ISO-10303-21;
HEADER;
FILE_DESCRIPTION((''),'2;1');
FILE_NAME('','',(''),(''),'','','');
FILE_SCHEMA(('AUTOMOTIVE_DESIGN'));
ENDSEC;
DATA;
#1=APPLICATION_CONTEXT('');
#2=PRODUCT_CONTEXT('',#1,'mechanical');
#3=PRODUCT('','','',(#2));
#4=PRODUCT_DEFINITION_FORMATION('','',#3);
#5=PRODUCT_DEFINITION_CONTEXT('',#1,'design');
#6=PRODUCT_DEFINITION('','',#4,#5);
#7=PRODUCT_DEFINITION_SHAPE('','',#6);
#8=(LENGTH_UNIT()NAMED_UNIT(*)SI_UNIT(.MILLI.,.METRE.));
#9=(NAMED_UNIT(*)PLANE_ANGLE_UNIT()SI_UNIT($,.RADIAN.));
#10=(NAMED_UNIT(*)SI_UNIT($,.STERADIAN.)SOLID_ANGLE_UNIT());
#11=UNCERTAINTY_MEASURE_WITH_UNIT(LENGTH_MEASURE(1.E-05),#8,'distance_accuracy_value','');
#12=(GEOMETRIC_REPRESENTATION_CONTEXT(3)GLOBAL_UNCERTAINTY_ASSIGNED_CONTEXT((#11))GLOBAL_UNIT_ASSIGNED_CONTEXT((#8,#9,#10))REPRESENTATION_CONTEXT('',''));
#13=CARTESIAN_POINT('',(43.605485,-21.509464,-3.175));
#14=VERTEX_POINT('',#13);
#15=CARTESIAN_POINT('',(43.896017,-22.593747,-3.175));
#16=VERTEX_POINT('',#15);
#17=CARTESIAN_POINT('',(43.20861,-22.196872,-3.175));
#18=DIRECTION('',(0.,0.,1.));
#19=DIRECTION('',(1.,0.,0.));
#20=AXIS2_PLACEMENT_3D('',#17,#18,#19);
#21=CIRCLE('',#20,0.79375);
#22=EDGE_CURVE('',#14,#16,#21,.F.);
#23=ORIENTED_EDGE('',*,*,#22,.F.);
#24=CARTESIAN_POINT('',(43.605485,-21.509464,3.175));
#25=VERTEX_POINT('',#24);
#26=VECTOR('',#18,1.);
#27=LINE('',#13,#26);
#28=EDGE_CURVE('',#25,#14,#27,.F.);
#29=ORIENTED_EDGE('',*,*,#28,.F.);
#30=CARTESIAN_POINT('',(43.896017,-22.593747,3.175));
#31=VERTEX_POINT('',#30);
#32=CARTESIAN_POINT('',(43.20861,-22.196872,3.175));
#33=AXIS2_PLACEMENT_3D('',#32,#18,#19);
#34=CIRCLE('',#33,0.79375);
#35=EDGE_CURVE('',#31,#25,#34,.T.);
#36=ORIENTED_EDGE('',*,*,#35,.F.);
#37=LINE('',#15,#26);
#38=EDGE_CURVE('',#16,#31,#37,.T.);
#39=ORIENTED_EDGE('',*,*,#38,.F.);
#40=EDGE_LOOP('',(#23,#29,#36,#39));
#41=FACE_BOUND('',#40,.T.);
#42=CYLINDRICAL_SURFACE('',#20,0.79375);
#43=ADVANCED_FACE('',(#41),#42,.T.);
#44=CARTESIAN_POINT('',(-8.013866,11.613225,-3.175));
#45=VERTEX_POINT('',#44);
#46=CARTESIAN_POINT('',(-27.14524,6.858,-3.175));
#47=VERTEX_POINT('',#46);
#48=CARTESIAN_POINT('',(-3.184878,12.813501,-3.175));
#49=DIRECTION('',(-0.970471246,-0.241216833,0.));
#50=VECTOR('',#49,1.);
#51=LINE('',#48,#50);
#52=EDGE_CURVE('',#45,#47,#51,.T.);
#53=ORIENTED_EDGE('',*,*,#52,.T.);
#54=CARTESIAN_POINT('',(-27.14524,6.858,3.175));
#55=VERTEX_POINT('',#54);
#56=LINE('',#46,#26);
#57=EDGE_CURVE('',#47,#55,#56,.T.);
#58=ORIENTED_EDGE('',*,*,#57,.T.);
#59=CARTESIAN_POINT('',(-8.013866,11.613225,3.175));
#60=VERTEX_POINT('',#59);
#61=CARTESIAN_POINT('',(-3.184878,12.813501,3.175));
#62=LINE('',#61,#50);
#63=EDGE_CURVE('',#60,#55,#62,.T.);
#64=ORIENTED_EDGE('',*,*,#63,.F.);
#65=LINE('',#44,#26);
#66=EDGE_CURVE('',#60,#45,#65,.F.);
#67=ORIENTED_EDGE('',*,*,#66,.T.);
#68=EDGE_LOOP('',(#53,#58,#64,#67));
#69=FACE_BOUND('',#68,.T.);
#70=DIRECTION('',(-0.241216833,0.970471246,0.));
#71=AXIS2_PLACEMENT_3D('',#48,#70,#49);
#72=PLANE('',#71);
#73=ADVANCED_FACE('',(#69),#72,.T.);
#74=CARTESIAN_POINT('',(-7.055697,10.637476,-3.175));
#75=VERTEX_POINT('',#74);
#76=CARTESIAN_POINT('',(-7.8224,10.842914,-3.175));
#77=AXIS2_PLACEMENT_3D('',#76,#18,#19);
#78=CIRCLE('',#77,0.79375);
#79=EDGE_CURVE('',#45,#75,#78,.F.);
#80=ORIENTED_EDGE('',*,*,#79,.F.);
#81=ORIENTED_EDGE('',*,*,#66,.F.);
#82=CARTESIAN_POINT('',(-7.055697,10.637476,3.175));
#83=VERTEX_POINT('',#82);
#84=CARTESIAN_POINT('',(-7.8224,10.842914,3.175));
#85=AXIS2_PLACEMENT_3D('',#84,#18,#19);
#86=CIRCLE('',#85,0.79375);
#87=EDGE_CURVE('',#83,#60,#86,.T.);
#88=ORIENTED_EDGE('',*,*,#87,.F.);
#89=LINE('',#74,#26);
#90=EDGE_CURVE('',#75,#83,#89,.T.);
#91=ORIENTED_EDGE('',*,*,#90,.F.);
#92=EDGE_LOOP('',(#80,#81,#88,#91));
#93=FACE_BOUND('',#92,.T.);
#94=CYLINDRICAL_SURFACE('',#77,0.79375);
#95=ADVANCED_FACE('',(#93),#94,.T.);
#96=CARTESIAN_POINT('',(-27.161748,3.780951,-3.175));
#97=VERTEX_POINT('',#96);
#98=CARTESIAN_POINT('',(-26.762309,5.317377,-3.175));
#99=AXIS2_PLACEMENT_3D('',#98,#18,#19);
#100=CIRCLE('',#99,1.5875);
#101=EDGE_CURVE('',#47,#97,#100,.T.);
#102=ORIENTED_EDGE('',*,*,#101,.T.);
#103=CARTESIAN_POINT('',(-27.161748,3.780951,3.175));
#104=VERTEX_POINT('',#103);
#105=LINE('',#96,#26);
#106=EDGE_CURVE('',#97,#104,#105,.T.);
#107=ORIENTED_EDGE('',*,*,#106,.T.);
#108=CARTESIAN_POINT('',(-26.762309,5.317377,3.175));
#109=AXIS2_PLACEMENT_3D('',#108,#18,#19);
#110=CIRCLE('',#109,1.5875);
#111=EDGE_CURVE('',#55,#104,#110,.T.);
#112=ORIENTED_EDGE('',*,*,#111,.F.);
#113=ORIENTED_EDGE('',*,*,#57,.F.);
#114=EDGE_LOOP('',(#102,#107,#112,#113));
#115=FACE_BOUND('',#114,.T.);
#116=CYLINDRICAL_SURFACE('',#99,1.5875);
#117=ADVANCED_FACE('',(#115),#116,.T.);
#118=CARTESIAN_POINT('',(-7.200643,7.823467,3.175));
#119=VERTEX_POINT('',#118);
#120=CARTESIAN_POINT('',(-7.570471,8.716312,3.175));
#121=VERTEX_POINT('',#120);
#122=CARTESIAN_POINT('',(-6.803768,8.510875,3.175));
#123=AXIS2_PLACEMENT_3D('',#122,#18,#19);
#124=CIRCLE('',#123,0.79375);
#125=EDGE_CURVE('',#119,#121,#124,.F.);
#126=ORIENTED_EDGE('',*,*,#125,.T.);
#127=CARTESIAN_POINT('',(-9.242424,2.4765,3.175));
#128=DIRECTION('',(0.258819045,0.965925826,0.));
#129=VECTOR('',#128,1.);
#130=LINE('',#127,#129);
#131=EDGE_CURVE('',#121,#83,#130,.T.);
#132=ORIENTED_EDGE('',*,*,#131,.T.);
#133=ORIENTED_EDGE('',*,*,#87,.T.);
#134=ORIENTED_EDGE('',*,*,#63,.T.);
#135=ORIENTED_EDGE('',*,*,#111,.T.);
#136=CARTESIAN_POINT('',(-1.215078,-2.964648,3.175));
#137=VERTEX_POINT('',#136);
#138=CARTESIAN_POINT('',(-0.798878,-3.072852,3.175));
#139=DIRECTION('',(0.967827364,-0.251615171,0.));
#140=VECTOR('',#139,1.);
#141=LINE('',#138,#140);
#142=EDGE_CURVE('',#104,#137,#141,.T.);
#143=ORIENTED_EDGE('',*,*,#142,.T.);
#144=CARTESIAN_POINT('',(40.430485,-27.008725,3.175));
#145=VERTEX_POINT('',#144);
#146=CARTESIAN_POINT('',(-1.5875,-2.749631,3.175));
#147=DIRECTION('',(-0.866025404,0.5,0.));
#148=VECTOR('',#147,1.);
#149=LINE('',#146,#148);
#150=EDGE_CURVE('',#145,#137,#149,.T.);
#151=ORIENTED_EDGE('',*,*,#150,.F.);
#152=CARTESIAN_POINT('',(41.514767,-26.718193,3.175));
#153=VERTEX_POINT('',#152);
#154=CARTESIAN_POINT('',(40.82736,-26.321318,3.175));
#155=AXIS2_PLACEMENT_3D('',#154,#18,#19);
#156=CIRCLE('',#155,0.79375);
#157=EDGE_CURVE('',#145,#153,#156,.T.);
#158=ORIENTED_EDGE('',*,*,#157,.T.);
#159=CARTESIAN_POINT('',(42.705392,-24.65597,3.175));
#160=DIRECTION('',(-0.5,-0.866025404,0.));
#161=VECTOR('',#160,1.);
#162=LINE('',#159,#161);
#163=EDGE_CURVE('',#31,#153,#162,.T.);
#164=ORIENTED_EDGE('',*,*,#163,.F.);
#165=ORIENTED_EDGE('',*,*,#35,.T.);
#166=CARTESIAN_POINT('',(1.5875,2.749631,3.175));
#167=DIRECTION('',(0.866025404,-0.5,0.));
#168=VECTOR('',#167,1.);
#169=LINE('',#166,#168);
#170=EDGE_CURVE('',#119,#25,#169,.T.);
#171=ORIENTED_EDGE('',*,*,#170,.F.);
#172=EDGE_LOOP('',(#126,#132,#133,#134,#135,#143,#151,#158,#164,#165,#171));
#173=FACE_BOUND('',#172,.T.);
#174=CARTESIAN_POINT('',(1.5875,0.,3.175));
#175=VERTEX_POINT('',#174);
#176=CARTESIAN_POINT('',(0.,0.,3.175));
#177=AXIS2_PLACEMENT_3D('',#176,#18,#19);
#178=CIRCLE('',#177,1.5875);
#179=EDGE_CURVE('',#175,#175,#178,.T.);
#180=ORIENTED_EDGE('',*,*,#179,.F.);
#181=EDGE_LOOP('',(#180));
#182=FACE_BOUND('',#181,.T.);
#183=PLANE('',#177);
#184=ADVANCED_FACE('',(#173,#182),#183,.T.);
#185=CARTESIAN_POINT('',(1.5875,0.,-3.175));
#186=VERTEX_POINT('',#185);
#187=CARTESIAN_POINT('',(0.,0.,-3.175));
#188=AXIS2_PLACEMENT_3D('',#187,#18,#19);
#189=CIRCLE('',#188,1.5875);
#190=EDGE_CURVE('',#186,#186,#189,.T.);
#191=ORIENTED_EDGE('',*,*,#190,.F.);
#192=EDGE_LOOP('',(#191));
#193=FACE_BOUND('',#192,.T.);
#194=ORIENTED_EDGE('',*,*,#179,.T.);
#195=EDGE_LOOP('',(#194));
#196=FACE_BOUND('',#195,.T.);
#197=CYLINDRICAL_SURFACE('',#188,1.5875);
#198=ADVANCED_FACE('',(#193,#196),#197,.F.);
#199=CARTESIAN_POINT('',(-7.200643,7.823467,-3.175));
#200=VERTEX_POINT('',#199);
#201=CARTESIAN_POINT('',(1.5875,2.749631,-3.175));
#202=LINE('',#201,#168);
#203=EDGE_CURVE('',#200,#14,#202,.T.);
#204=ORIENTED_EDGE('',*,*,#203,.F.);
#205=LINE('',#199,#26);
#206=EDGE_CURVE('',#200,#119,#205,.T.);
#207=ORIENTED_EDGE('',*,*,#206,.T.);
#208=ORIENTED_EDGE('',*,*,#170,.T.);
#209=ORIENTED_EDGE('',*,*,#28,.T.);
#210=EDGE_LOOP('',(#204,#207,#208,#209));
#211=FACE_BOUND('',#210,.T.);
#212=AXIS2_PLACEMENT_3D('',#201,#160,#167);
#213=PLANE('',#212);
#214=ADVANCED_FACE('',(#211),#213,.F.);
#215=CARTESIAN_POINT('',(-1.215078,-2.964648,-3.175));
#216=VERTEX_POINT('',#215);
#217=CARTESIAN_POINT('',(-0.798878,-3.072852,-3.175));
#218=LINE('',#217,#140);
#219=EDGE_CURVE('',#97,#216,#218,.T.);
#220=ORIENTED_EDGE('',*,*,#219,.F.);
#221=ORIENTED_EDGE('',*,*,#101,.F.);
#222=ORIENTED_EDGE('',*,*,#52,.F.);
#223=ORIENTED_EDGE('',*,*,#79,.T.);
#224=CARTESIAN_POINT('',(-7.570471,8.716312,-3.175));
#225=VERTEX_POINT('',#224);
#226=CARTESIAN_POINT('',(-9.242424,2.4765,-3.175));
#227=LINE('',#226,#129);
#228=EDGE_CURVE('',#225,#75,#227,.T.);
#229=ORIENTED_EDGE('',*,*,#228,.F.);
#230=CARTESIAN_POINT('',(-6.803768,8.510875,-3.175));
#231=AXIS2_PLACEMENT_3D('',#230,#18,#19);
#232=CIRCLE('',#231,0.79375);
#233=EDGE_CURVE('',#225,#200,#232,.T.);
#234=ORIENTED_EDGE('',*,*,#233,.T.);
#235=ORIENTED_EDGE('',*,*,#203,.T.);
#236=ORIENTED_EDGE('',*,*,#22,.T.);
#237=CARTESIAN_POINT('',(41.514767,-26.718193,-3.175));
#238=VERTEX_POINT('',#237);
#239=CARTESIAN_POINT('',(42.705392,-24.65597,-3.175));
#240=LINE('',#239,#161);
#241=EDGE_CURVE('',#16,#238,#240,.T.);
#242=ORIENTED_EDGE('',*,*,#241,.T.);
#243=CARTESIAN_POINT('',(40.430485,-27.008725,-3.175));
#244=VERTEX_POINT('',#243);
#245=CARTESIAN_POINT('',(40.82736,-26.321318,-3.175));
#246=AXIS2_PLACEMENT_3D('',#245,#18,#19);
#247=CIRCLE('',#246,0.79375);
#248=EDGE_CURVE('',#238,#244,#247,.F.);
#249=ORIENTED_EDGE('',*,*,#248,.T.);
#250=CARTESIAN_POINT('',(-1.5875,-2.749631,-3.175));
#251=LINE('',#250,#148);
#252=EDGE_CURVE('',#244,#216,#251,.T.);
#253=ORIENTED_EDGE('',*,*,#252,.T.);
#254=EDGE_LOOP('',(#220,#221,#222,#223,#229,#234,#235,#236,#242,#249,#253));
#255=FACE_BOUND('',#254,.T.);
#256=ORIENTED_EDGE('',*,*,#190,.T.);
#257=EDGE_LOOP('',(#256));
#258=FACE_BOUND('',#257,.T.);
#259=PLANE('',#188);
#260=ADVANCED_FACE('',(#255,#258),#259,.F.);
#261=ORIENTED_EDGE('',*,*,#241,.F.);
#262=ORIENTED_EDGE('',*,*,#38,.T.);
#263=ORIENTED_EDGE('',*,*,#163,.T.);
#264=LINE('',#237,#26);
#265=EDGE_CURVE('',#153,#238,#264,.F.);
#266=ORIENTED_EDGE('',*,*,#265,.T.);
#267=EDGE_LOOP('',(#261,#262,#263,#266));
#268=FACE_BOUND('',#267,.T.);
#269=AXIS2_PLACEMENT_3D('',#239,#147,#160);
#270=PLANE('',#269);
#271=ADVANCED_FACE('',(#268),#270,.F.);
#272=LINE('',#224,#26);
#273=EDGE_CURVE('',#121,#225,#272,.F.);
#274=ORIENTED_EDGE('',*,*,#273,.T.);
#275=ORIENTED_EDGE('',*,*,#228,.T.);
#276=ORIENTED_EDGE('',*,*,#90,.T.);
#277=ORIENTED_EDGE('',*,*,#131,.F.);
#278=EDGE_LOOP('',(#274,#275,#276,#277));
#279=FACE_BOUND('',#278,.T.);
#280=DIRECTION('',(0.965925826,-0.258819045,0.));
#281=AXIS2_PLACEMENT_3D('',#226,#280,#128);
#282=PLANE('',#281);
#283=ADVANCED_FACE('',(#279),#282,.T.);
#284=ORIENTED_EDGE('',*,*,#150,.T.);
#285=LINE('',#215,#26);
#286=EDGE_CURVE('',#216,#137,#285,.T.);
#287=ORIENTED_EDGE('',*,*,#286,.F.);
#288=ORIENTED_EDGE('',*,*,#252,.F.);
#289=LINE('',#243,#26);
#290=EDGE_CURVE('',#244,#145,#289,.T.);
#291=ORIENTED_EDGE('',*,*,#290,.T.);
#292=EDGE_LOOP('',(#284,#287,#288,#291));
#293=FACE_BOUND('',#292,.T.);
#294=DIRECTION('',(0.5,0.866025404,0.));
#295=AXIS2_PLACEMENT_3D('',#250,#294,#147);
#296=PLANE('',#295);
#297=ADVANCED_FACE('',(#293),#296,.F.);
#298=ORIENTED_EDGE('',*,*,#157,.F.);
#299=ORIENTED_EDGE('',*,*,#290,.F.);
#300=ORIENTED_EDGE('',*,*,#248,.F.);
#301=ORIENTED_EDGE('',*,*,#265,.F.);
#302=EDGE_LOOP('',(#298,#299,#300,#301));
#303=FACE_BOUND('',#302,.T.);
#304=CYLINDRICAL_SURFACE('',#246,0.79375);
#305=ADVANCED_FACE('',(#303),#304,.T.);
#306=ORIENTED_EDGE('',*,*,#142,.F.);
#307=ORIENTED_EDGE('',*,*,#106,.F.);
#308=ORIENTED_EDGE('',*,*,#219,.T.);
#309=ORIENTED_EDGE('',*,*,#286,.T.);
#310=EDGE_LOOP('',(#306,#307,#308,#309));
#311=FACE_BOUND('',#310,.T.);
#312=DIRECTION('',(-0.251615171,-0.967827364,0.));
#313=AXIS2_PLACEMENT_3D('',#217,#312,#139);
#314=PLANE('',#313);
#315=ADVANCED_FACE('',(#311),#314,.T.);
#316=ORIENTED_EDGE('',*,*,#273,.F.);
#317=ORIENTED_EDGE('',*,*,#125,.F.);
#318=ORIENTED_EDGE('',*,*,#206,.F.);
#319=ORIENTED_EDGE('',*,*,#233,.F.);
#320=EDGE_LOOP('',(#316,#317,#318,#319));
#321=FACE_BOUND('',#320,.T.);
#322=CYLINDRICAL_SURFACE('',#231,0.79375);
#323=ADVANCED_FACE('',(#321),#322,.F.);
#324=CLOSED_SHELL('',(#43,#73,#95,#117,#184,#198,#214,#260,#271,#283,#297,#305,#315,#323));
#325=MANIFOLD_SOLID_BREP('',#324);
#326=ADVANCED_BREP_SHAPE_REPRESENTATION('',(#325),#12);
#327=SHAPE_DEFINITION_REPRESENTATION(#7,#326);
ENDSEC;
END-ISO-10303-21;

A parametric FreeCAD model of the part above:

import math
import FreeCAD as App
import Part
import Sketcher
Q = App.Units.Quantity


def edges_at(feature, points):
    """Names of the edges that pass closest to the given points."""
    edges = feature.Shape.Edges
    near = lambda p: min(range(len(edges)), key=lambda i: edges[i].distToShape(Part.Vertex(*p))[0])
    return sorted({f"Edge{near(p) + 1}" for p in points})

doc = App.newDocument("Part")
body = doc.addObject("PartDesign::Body", "Body")

# Sketch on XY plane
sketch1 = body.newObject("Sketcher::SketchObject", "Sketch")
sketch1.AttachmentSupport = (doc.getObject("XY_Plane"), [""])
sketch1.MapMode = "FlatFace"
sketch1.addGeometry([
    Part.LineSegment(App.Vector(-7.7, 8.1, 0), App.Vector(-6.7, 11.9, 0)),  # 0
    Part.LineSegment(App.Vector(-6.7, 11.9, 0), App.Vector(-27.1, 6.9, 0)),  # 1
    Part.ArcOfCircle(Part.Circle(App.Vector(-26.8, 5.3, 0), App.Vector(0, 0, 1), 1.6), math.radians(104), math.radians(255)),  # 2
    Part.LineSegment(App.Vector(-27.2, 3.8, 0), App.Vector(-1.2, -3, 0)),  # 3
    Part.LineSegment(App.Vector(-1.2, -3, 0), App.Vector(41.1, -27.4, 0)),  # 4
    Part.LineSegment(App.Vector(41.1, -27.4, 0), App.Vector(44.3, -21.9, 0)),  # 5
    Part.LineSegment(App.Vector(44.3, -21.9, 0), App.Vector(-7.7, 8.1, 0)),  # 6
    Part.Circle(App.Vector(0, 0, 0), App.Vector(0, 0, 1), 1.6),  # 7
], False)
sketch1.addConstraint([
    Sketcher.Constraint("Coincident", 0, 2, 1, 1),
    Sketcher.Constraint("Tangent", 1, 2, 2, 1),
    Sketcher.Constraint("Tangent", 2, 2, 3, 1),
    Sketcher.Constraint("Coincident", 3, 2, 4, 1),
    Sketcher.Constraint("Coincident", 4, 2, 5, 1),
    Sketcher.Constraint("Coincident", 5, 2, 6, 1),
    Sketcher.Constraint("Coincident", 6, 2, 0, 1),
    Sketcher.Constraint("Coincident", 7, 3, -1, 1),
    Sketcher.Constraint("Equal", 2, 7),
    Sketcher.Constraint("Perpendicular", 4, 5),
    Sketcher.Constraint("Perpendicular", 5, 6),
    Sketcher.Constraint("Diameter", 7, Q("0.125 in")),
    Sketcher.Constraint("Angle", 0, Q("75 deg")),
    Sketcher.Constraint("Angle", 4, Q("-30 deg")),
    Sketcher.Constraint("DistanceY", 1, 2, 0, 2, Q("0.2 in")),
    Sketcher.Constraint("Distance", 5, Q("0.25 in")),
    Sketcher.Constraint("DistanceY", -1, 1, 0, 2, Q("0.47 in")),
    Sketcher.Constraint("DistanceY", -1, 1, 6, 2, Q("0.32 in")),
    Sketcher.Constraint("DistanceY", 4, 2, -1, 1, Q("27.4056 mm")),
    Sketcher.Constraint("DistanceY", 3, 2, 2, 2, Q("6.745599 mm")),
    Sketcher.Constraint("DistanceX", 2, 3, 4, 2, Q("67.880201 mm")),
    Sketcher.Constraint("DistanceX", 2, 3, -1, 1, Q("26.762309 mm")),
])
pad1 = body.newObject("PartDesign::Pad", "Pad")
pad1.Profile = sketch1
pad1.Type = "TwoLengths"
pad1.Length = Q("0.125 in")
pad1.Length2 = Q("0.125 in")
doc.recompute()

fillet = body.newObject("PartDesign::Fillet", "Fillet")
fillet.Base = (pad1, edges_at(pad1, [
    (44.293, -21.906, 0),
    (41.118, -27.406, 0),
    (-6.707, 11.938, 0),
    (-7.728, 8.128, 0),
]))
fillet.Radius = Q("0.03125 in")

doc.recompute()
